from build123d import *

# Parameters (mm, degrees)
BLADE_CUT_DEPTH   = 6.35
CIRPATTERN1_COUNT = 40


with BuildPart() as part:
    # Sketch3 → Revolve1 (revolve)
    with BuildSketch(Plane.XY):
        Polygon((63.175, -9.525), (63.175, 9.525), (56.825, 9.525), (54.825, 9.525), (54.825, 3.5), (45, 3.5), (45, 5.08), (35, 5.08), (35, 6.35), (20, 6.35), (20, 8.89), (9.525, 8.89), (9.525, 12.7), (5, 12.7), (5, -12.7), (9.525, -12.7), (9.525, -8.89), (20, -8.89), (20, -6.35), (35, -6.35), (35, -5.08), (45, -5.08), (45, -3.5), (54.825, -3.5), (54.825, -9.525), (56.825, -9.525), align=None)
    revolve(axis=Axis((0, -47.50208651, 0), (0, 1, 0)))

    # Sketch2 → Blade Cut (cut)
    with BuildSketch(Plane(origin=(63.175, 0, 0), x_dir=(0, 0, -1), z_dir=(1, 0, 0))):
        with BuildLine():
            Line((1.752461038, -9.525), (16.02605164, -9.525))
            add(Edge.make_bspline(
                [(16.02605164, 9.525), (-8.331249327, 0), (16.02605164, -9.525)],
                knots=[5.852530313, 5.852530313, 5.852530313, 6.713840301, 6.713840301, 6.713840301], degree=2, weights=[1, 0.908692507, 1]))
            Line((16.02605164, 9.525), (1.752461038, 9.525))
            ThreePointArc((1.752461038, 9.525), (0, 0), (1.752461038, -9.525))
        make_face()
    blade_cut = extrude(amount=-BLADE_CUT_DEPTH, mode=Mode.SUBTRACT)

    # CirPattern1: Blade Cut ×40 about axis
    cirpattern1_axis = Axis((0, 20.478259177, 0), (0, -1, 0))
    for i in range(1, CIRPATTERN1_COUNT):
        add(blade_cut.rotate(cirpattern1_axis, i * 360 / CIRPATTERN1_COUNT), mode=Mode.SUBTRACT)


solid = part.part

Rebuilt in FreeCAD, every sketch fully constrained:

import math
import FreeCAD as App
import Part
import Sketcher
from FreeCAD import Vector
Q = App.Units.Quantity


def add_polygon(sketch, points):
    """Adds a closed chain of lines whose ends are joined by coincident constraints."""
    first, n = sketch.GeometryCount, len(points)
    for a, b in zip(points, points[1:] + points[:1]):
        sketch.addGeometry(Part.LineSegment(App.Vector(*a, 0), App.Vector(*b, 0)), False)
    for i in range(n):
        sketch.addConstraint(Sketcher.Constraint("Coincident", first + i, 2, first + (i + 1) % n, 1))

doc = App.newDocument("Part")
params = doc.addObject("Spreadsheet::Sheet", "Params")
for row, (alias, value) in enumerate([
    ("sketch1_height", "1 in"),
    ("sketch1_height2", "0.1 in"),
    ("sketch1_height3", "0.75 in"),
    ("sketch1_height4", "0.05 in"),
    ("sketch1_height5", "0.15 in"),
    ("revolution_angle", "360 deg"),
    ("pocket1_length", "0.25 in"),
], start=1):
    params.set(f"A{row}", alias)
    params.set(f"B{row}", "=" + value)
    params.setAlias(f"B{row}", alias)

body = doc.addObject("PartDesign::Body", "Body")

sketch1 = doc.addObject("Sketcher::SketchObject", "Sketch")
body.addObject(sketch1)
sketch1.AttachmentSupport = (doc.XY_Plane, [""])
sketch1.MapMode = "FlatFace"
add_polygon(sketch1, [(63.2, -9.5), (63.2, 9.5), (54.8, 9.5), (54.8, 3.5), (45, 3.5), (45, 5.1), (35, 5.1), (35, 6.3), (20, 6.3), (20, 8.9), (9.5, 8.9), (9.5, 12.7), (5, 12.7), (5, -12.7), (9.5, -12.7), (9.5, -8.9), (20, -8.9), (20, -6.3), (35, -6.3), (35, -5.1), (45, -5.1), (45, -3.5), (54.8, -3.5), (54.8, -9.5)])
sketch1.addConstraint([
    Sketcher.Constraint("Vertical", 0),
    Sketcher.Constraint("Horizontal", 1),
    Sketcher.Constraint("Vertical", 2),
    Sketcher.Constraint("Horizontal", 3),
    Sketcher.Constraint("Vertical", 4),
    Sketcher.Constraint("Horizontal", 5),
    Sketcher.Constraint("Vertical", 6),
    Sketcher.Constraint("Horizontal", 7),
    Sketcher.Constraint("Vertical", 8),
    Sketcher.Constraint("Horizontal", 9),
    Sketcher.Constraint("Vertical", 10),
    Sketcher.Constraint("Horizontal", 11),
    Sketcher.Constraint("Vertical", 12),
    Sketcher.Constraint("Horizontal", 13),
    Sketcher.Constraint("Vertical", 14),
    Sketcher.Constraint("Horizontal", 15),
    Sketcher.Constraint("Vertical", 16),
    Sketcher.Constraint("Horizontal", 17),
    Sketcher.Constraint("Vertical", 18),
    Sketcher.Constraint("Horizontal", 19),
    Sketcher.Constraint("Vertical", 20),
    Sketcher.Constraint("Horizontal", 21),
    Sketcher.Constraint("Vertical", 22),
    Sketcher.Constraint("Horizontal", 23),
    Sketcher.Constraint("Symmetric", 10, 2, 13, 2, -1),
    Sketcher.Constraint("Symmetric", 8, 2, 15, 2, -1),
    Sketcher.Constraint("Symmetric", 6, 2, 17, 2, -1),
    Sketcher.Constraint("Symmetric", 4, 2, 19, 2, -1),
    Sketcher.Constraint("Symmetric", 2, 2, 21, 2, -1),
    Sketcher.Constraint("Equal", 2, 22),
    Sketcher.Constraint("DistanceY", 12, 2, 12, 1, Q("1 in")),
    Sketcher.Constraint("DistanceY", 8, 1, 8, 2, Q("0.1 in")),
    Sketcher.Constraint("DistanceY", 0, 1, 0, 2, Q("0.75 in")),
    Sketcher.Constraint("DistanceY", 6, 1, 6, 2, Q("0.05 in")),
    Sketcher.Constraint("DistanceY", 10, 1, 10, 2, Q("0.15 in")),
    Sketcher.Constraint("DistanceX", -1, 1, 9, 2, Q("0.375 in")),
    Sketcher.Constraint("DistanceX", 1, 2, 1, 1, 8.35),
    Sketcher.Constraint("DistanceX", 3, 2, 3, 1, 9.825),
    Sketcher.Constraint("DistanceX", 5, 2, 5, 1, 10.0),
    Sketcher.Constraint("DistanceX", 7, 2, 7, 1, 15.0),
    Sketcher.Constraint("DistanceX", 9, 2, 9, 1, 10.475),
    Sketcher.Constraint("DistanceX", 11, 2, 11, 1, 4.525),
    Sketcher.Constraint("DistanceY", 2, 2, 2, 1, 6.025),
])
sketch1.setExpression("Constraints[54]", "Params.sketch1_height")
sketch1.setExpression("Constraints[55]", "Params.sketch1_height2")
sketch1.setExpression("Constraints[56]", "Params.sketch1_height3")
sketch1.setExpression("Constraints[57]", "Params.sketch1_height4")
sketch1.setExpression("Constraints[58]", "Params.sketch1_height5")
revolution = doc.addObject("PartDesign::Revolution", "Revolution")
body.addObject(revolution)
revolution.Profile = sketch1
revolution.ReferenceAxis = (sketch1, ["V_Axis"])
revolution.setExpression("Angle", "Params.revolution_angle")

sketch2 = doc.addObject("Sketcher::SketchObject", "Sketch001")
body.addObject(sketch2)
sketch2.AttachmentSupport = (doc.YZ_Plane, [""])
sketch2.MapMode = "FlatFace"
sketch2.AttachmentOffset = App.Placement(Vector(0, 0, 63.175), App.Rotation())
sketch2.addGeometry([
    Part.LineSegment(Vector(-9.525, -1.752461, 0), Vector(-9.525, -16.026052, 0)),
    Part.BSplineCurve([Vector(9.525, -16.026052, 0), Vector(0, 8.331249, 0), Vector(-9.525, -16.026052, 0)], [3, 3], [5.852530313, 6.713840301], False, 2, [1, 0.908692507, 1], False),
    Part.LineSegment(Vector(9.525, -16.026052, 0), Vector(9.525, -1.752461, 0)),
    Part.ArcOfCircle(Part.Circle(Vector(0, -26.761435, 0), Vector(0, 0, 1), 26.761435), math.radians(69.15), math.radians(110.85)),
], False)
sketch2.addConstraint([
    Sketcher.Constraint("Block", 1),
    Sketcher.Constraint("Coincident", 0, 2, 1, 2),
    Sketcher.Constraint("Coincident", 1, 1, 2, 1),
    Sketcher.Constraint("Coincident", 2, 2, 3, 1),
    Sketcher.Constraint("Coincident", 3, 2, 0, 1),
    Sketcher.Constraint("Vertical", 0),
    Sketcher.Constraint("Vertical", 2),
    Sketcher.Constraint("PointOnObject", 3, 3, -2),
    Sketcher.Constraint("Radius", 3, Q("1.0535998 in")),
    Sketcher.Constraint("DistanceY", 3, 3, -1, 1, Q("1.0535998 in")),
])
pocket1 = doc.addObject("PartDesign::Pocket", "Pocket")
body.addObject(pocket1)
pocket1.Profile = sketch2
pocket1.setExpression("Length", "Params.pocket1_length")
doc.recompute()

polarpattern = doc.addObject("PartDesign::PolarPattern", "PolarPattern")
body.addObject(polarpattern)
polarpattern.Originals = [pocket1]
polarpattern.Axis = (doc.Y_Axis, [""])
polarpattern.Angle = 360
polarpattern.Occurrences = 40
body.Tip = polarpattern

doc.recompute()
